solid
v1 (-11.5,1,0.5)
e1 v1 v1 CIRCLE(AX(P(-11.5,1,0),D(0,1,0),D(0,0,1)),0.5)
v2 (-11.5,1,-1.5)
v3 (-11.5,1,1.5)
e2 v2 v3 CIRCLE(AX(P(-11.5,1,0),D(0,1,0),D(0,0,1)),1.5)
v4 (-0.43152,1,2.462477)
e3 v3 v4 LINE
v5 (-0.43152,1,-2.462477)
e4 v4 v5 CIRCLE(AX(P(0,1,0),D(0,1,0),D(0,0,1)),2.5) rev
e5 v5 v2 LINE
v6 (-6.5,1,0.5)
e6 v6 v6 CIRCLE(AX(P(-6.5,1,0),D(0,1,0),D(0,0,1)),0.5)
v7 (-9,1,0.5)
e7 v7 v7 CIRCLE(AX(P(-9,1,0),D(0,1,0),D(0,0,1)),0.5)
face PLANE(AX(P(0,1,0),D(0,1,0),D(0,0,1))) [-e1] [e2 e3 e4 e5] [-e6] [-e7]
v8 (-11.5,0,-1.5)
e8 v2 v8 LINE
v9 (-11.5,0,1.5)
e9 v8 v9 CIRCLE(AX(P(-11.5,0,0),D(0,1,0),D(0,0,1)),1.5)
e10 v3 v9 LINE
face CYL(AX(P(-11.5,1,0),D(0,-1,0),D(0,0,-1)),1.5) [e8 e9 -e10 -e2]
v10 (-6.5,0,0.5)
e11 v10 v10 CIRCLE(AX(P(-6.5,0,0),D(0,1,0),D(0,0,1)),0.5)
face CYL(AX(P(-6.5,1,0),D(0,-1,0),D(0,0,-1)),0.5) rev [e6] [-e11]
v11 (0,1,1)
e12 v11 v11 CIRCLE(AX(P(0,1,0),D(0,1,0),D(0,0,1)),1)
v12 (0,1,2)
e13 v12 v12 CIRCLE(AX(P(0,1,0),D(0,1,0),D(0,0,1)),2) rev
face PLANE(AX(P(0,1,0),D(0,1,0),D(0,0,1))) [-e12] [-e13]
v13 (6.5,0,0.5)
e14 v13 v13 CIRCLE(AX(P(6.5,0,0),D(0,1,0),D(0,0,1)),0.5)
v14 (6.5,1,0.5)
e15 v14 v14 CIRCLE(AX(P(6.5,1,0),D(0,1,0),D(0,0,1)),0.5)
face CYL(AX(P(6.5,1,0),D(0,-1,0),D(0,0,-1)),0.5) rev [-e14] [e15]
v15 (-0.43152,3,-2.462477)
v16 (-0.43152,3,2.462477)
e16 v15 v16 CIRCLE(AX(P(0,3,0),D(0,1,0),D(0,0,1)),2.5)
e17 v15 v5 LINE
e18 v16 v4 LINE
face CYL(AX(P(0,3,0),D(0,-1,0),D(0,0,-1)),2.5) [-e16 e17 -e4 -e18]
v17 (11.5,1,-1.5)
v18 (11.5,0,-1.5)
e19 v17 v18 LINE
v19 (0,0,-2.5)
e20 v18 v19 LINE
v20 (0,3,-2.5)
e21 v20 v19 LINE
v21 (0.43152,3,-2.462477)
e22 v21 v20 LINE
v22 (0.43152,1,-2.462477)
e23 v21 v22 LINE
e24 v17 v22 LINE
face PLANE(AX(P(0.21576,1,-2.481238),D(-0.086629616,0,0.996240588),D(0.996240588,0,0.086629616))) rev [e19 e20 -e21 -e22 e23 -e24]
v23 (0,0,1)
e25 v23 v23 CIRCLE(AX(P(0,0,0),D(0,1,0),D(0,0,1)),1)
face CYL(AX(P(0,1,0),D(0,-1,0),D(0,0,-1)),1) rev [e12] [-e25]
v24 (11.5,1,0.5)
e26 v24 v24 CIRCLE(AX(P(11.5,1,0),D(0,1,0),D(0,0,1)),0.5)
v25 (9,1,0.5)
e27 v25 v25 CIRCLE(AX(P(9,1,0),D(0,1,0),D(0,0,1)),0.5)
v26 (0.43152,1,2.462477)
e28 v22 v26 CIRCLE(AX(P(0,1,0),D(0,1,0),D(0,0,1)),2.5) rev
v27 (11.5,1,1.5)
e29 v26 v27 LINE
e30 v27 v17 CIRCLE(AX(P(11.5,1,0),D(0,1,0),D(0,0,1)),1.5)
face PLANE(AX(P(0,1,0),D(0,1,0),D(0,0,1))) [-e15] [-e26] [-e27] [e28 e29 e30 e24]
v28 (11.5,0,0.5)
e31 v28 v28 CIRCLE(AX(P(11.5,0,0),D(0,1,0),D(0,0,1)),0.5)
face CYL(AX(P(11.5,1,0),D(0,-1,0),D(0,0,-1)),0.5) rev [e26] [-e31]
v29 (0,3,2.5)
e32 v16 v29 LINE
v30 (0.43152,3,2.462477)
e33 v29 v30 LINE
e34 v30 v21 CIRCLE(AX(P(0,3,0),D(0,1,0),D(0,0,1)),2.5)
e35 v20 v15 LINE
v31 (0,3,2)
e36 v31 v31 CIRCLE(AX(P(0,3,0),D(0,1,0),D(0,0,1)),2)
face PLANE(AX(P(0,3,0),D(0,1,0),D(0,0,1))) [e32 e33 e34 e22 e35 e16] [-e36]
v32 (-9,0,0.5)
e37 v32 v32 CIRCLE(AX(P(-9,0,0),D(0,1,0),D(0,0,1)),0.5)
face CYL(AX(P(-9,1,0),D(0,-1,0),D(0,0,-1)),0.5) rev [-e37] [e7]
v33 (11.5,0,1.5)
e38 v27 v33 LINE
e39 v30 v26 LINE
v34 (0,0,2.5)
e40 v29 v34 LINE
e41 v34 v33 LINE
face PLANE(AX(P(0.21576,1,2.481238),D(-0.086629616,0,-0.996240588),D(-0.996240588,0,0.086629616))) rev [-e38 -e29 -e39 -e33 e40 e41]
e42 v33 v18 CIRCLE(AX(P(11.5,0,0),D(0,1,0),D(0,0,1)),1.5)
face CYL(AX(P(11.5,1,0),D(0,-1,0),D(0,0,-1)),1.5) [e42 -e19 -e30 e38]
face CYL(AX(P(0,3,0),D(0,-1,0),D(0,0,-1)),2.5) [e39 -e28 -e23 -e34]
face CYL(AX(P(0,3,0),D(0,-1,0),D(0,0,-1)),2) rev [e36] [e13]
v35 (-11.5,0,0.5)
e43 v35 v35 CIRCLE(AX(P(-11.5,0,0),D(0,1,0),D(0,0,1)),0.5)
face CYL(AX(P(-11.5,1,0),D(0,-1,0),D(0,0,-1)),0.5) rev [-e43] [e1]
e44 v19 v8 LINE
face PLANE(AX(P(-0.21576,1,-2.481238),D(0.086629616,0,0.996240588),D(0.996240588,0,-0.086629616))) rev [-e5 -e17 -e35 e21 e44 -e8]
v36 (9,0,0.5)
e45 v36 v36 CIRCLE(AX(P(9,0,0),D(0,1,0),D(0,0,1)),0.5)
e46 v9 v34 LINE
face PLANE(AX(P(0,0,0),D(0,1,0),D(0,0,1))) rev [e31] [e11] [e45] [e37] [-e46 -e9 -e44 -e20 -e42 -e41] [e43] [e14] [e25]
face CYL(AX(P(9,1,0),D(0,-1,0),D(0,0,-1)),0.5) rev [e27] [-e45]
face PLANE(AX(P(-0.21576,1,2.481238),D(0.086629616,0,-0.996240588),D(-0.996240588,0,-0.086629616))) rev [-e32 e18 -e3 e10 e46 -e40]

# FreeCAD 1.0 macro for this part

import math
import FreeCAD as App
import Part
import Sketcher

V = App.Vector
Q = App.Units.Quantity

doc = App.newDocument("Part")
body = doc.addObject("PartDesign::Body", "Body")

# Sketch on XZ plane
sketch1 = body.newObject("Sketcher::SketchObject", "Sketch")
sketch1.AttachmentSupport = (doc.getObject("XZ_Plane"), [""])
sketch1.MapMode = "FlatFace"
sketch1.addGeometry(Part.LineSegment(V(-11.5, 1.5, 0), V(-0.43, 2.46, 0)), False)
sketch1.addGeometry(Part.LineSegment(V(-0.43, 2.46, 0), V(0, 2.5, 0)), False)
sketch1.addGeometry(Part.LineSegment(V(0, 2.5, 0), V(0.43, 2.46, 0)), False)
sketch1.addGeometry(Part.LineSegment(V(0.43, 2.46, 0), V(11.5, 1.5, 0)), False)
sketch1.addGeometry(Part.ArcOfCircle(Part.Circle(V(11.5, 0, 0), V(0, 0, 1), 1.5), math.radians(-90), math.radians(90)), False)
sketch1.addGeometry(Part.LineSegment(V(11.5, -1.5, 0), V(0.43, -2.46, 0)), False)
sketch1.addGeometry(Part.LineSegment(V(0.43, -2.46, 0), V(0, -2.5, 0)), False)
sketch1.addGeometry(Part.LineSegment(V(0, -2.5, 0), V(-0.43, -2.46, 0)), False)
sketch1.addGeometry(Part.LineSegment(V(-0.43, -2.46, 0), V(-11.5, -1.5, 0)), False)
sketch1.addGeometry(Part.ArcOfCircle(Part.Circle(V(-11.5, 0, 0), V(0, 0, 1), 1.5), math.radians(90), math.radians(270)), False)
sketch1.addGeometry(Part.Circle(V(-9, 0, 0), V(0, 0, 1), 0.5), False)
sketch1.addGeometry(Part.Circle(V(-6.5, 0, 0), V(0, 0, 1), 0.5), False)
sketch1.addGeometry(Part.Circle(V(-11.5, 0, 0), V(0, 0, 1), 0.5), False)
sketch1.addGeometry(Part.Circle(V(6.5, 0, 0), V(0, 0, 1), 0.5), False)
sketch1.addGeometry(Part.Circle(V(9, 0, 0), V(0, 0, 1), 0.5), False)
sketch1.addGeometry(Part.Circle(V(0, 0, 0), V(0, 0, 1), 1), False)
sketch1.addGeometry(Part.Circle(V(11.5, 0, 0), V(0, 0, 1), 0.5), False)
sketch1.addConstraint(Sketcher.Constraint("Coincident", 0, 2, 1, 1))
sketch1.addConstraint(Sketcher.Constraint("Coincident", 1, 2, 2, 1))
sketch1.addConstraint(Sketcher.Constraint("Coincident", 2, 2, 3, 1))
sketch1.addConstraint(Sketcher.Constraint("Coincident", 3, 2, 4, 2))
sketch1.addConstraint(Sketcher.Constraint("Coincident", 4, 1, 5, 1))
sketch1.addConstraint(Sketcher.Constraint("Coincident", 5, 2, 6, 1))
sketch1.addConstraint(Sketcher.Constraint("Coincident", 6, 2, 7, 1))
sketch1.addConstraint(Sketcher.Constraint("Coincident", 7, 2, 8, 1))
sketch1.addConstraint(Sketcher.Constraint("Coincident", 8, 2, 9, 2))
sketch1.addConstraint(Sketcher.Constraint("Coincident", 9, 1, 0, 1))
sketch1.addConstraint(Sketcher.Constraint("Coincident", 15, 3, -1, 1))
sketch1.addConstraint(Sketcher.Constraint("Coincident", 12, 3, 9, 3))
sketch1.addConstraint(Sketcher.Constraint("Coincident", 16, 3, 4, 3))
sketch1.addConstraint(Sketcher.Constraint("Equal", 4, 9))
sketch1.addConstraint(Sketcher.Constraint("Equal", 10, 11))
sketch1.addConstraint(Sketcher.Constraint("Equal", 11, 12))
sketch1.addConstraint(Sketcher.Constraint("Equal", 12, 13))
sketch1.addConstraint(Sketcher.Constraint("Equal", 13, 14))
sketch1.addConstraint(Sketcher.Constraint("Equal", 14, 16))
sketch1.addConstraint(Sketcher.Constraint("Symmetric", 4, 3, 9, 3, -1, 1))
sketch1.addConstraint(Sketcher.Constraint("Symmetric", 11, 3, 13, 3, -1, 1))
sketch1.addConstraint(Sketcher.Constraint("Symmetric", 10, 3, 14, 3, -1, 1))
sketch1.addConstraint(Sketcher.Constraint("Symmetric", 0, 2, 5, 2, -1, 1))
sketch1.addConstraint(Sketcher.Constraint("Symmetric", 1, 2, 6, 2, -1, 1))
sketch1.addConstraint(Sketcher.Constraint("Symmetric", 2, 2, 7, 2, -1, 1))
sketch1.addConstraint(Sketcher.Constraint("Symmetric", 0, 2, 2, 2, -2))
sketch1.addConstraint(Sketcher.Constraint("Symmetric", 4, 1, 8, 2, -2))
sketch1.addConstraint(Sketcher.Constraint("PointOnObject", 10, 3, -1))
sketch1.addConstraint(Sketcher.Constraint("PointOnObject", 11, 3, -1))
sketch1.addConstraint(Sketcher.Constraint("PointOnObject", 1, 2, -2))
sketch1.addConstraint(Sketcher.Constraint("Parallel", 0, 1))
sketch1.addConstraint(Sketcher.Constraint("Parallel", 2, 3))
sketch1.addConstraint(Sketcher.Constraint("Parallel", 0, 5))
sketch1.addConstraint(Sketcher.Constraint("Vertical", 16, 3, 3, 2))
sketch1.addConstraint(Sketcher.Constraint("Diameter", 10, Q("1 mm")))
sketch1.addConstraint(Sketcher.Constraint("Diameter", 15, Q("2 mm")))
sketch1.addConstraint(Sketcher.Constraint("Radius", 4, Q("1.5 mm")))
sketch1.addConstraint(Sketcher.Constraint("DistanceX", 10, 3, -1, 1, Q("9 mm")))
sketch1.addConstraint(Sketcher.Constraint("DistanceX", 9, 3, 4, 3, Q("23 mm")))
sketch1.addConstraint(Sketcher.Constraint("DistanceX", 9, 3, 11, 3, Q("5 mm")))
sketch1.addConstraint(Sketcher.Constraint("DistanceY", 6, 2, 1, 2, Q("5 mm")))
sketch1.addConstraint(Sketcher.Constraint("Distance", 0, Q("11.110248 mm")))
pad1 = body.newObject("PartDesign::Pad", "Pad")
pad1.Profile = sketch1
pad1.Length = 1
pad1.Reversed = True

# Sketch on XZ plane
sketch2 = body.newObject("Sketcher::SketchObject", "Sketch001")
sketch2.AttachmentSupport = (doc.getObject("XZ_Plane"), [""])
sketch2.MapMode = "FlatFace"
sketch2.addGeometry(Part.ArcOfCircle(Part.Circle(V(0, 0, 0), V(0, 0, 1), 2.5), math.radians(-80), math.radians(0)), False)
sketch2.addGeometry(Part.LineSegment(V(0.43, -2.46, 0), V(0, -2.5, 0)), False)
sketch2.addGeometry(Part.LineSegment(V(0, -2.5, 0), V(-0.43, -2.46, 0)), False)
sketch2.addGeometry(Part.ArcOfCircle(Part.Circle(V(0, 0, 0), V(0, 0, 1), 2.5), math.radians(100), math.radians(260)), False)
sketch2.addGeometry(Part.LineSegment(V(-0.43, 2.46, 0), V(0, 2.5, 0)), False)
sketch2.addGeometry(Part.LineSegment(V(0, 2.5, 0), V(0.43, 2.46, 0)), False)
sketch2.addGeometry(Part.ArcOfCircle(Part.Circle(V(0, 0, 0), V(0, 0, 1), 2.5), math.radians(0), math.radians(80)), False)
sketch2.addGeometry(Part.Circle(V(0, 0, 0), V(0, 0, 1), 2), False)
sketch2.addConstraint(Sketcher.Constraint("Coincident", 0, 1, 1, 1))
sketch2.addConstraint(Sketcher.Constraint("Coincident", 1, 2, 2, 1))
sketch2.addConstraint(Sketcher.Constraint("Coincident", 2, 2, 3, 2))
sketch2.addConstraint(Sketcher.Constraint("Coincident", 3, 1, 4, 1))
sketch2.addConstraint(Sketcher.Constraint("Coincident", 4, 2, 5, 1))
sketch2.addConstraint(Sketcher.Constraint("Coincident", 5, 2, 6, 2))
sketch2.addConstraint(Sketcher.Constraint("Tangent", 6, 1, 0, 2))
sketch2.addConstraint(Sketcher.Constraint("Coincident", 0, 3, -1, 1))
sketch2.addConstraint(Sketcher.Constraint("Coincident", 3, 3, -1, 1))
sketch2.addConstraint(Sketcher.Constraint("Coincident", 7, 3, -1, 1))
sketch2.addConstraint(Sketcher.Constraint("Equal", 0, 3))
sketch2.addConstraint(Sketcher.Constraint("Equal", 3, 6))
sketch2.addConstraint(Sketcher.Constraint("Symmetric", 1, 2, 4, 2, -1, 1))
sketch2.addConstraint(Sketcher.Constraint("PointOnObject", 1, 2, -2))
sketch2.addConstraint(Sketcher.Constraint("PointOnObject", 6, 1, -1))
sketch2.addConstraint(Sketcher.Constraint("Parallel", 1, 4))
sketch2.addConstraint(Sketcher.Constraint("Parallel", 2, 5))
sketch2.addConstraint(Sketcher.Constraint("Horizontal", 0, 1, 2, 2))
sketch2.addConstraint(Sketcher.Constraint("Diameter", 7, Q("4 mm")))
sketch2.addConstraint(Sketcher.Constraint("Radius", 0, Q("2.5 mm")))
sketch2.addConstraint(Sketcher.Constraint("DistanceY", 1, 2, -1, 1, Q("2.5 mm")))
sketch2.addConstraint(Sketcher.Constraint("Distance", 1, Q("0.433148 mm")))
pad2 = body.newObject("PartDesign::Pad", "Pad001")
pad2.Profile = sketch2
pad2.Length = 3
pad2.Reversed = True

doc.recompute()
